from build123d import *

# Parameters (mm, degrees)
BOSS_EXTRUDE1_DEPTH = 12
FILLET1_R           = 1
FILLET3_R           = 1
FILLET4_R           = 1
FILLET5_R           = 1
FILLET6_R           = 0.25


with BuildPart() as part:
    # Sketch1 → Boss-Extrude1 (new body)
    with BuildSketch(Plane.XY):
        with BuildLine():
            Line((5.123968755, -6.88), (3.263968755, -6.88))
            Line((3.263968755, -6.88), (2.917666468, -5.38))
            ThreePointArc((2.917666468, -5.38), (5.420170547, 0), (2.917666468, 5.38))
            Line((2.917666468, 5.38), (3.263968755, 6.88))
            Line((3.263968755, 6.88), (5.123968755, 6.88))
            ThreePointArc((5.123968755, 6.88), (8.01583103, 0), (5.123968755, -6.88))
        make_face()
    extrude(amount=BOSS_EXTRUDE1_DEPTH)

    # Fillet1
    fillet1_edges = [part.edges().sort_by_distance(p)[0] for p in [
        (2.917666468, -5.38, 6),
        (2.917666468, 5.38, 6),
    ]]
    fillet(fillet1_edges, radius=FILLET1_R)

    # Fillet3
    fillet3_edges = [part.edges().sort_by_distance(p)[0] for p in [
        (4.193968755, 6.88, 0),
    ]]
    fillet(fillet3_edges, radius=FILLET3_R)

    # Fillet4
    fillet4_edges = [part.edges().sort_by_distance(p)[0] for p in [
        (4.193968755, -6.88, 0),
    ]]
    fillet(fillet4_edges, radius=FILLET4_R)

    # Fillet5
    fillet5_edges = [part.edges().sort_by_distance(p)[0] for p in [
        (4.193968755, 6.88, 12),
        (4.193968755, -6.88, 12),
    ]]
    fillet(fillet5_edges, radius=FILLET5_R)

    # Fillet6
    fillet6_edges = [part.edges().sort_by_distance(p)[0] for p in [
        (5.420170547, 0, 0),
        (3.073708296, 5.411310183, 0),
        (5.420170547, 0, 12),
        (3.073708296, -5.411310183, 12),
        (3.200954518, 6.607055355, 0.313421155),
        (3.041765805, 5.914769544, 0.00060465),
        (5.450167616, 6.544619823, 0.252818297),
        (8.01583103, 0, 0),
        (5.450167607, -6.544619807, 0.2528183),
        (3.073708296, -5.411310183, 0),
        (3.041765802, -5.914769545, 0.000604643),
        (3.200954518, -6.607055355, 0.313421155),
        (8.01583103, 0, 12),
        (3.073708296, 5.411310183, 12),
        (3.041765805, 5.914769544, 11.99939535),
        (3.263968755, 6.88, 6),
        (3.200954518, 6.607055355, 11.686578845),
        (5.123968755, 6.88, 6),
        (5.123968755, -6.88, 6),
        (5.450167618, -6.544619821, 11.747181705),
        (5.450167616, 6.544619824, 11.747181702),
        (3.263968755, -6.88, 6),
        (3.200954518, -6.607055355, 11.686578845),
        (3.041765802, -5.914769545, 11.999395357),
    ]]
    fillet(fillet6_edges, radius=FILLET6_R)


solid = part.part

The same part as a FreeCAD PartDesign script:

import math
import FreeCAD as App
import Part
import Sketcher
from FreeCAD import Vector
Q = App.Units.Quantity


def edges_at(feature, points):
    """Names of the edges that pass closest to the given points."""
    edges = feature.Shape.Edges
    near = lambda p: min(range(len(edges)), key=lambda i: edges[i].distToShape(Part.Vertex(*p))[0])
    return sorted({f"Edge{near(p) + 1}" for p in points})

doc = App.newDocument("Part")
body = doc.addObject("PartDesign::Body", "Body")

sketch1 = body.newObject("Sketcher::SketchObject", "Sketch")
sketch1.AttachmentSupport = (doc.getObject("XY_Plane"), [""])
sketch1.MapMode = "FlatFace"
sketch1.addGeometry([
    Part.LineSegment(Vector(3.3, -6.9, 0), Vector(5.1, -6.9, 0)),
    Part.ArcOfCircle(Part.Circle(Vector(-1.6, 0, 0), Vector(0, 0, 1), 9.6), math.radians(-46), math.radians(46)),
    Part.LineSegment(Vector(5.1, 6.9, 0), Vector(3.3, 6.9, 0)),
    Part.LineSegment(Vector(3.3, 6.9, 0), Vector(2.9, 5.4, 0)),
    Part.ArcOfCircle(Part.Circle(Vector(-1.6, 0, 0), Vector(0, 0, 1), 7), math.radians(-50), math.radians(50)),
    Part.LineSegment(Vector(2.9, -5.4, 0), Vector(3.3, -6.9, 0)),
], False)
sketch1.addConstraint([
    Sketcher.Constraint("Coincident", 0, 2, 1, 1),
    Sketcher.Constraint("Coincident", 1, 2, 2, 1),
    Sketcher.Constraint("Coincident", 2, 2, 3, 1),
    Sketcher.Constraint("Coincident", 3, 2, 4, 2),
    Sketcher.Constraint("Coincident", 4, 1, 5, 1),
    Sketcher.Constraint("Coincident", 5, 2, 0, 1),
    Sketcher.Constraint("Horizontal", 0),
    Sketcher.Constraint("Horizontal", 2),
    Sketcher.Constraint("Coincident", 4, 3, 1, 3),
    Sketcher.Constraint("Symmetric", 0, 2, 1, 2, -1),
    Sketcher.Constraint("Vertical", 3, 2, 4, 1),
    Sketcher.Constraint("Vertical", 2, 2, 5, 2),
    Sketcher.Constraint("Angle", 3, Q("-103 deg")),
    Sketcher.Constraint("Radius", 1, Q("9.63 mm")),
    Sketcher.Constraint("DistanceX", 0, 1, 0, 2, Q("1.86 mm")),
    Sketcher.Constraint("DistanceY", 3, 2, 2, 2, Q("1.5 mm")),
    Sketcher.Constraint("DistanceY", 0, 2, -1, 1, Q("6.88 mm")),
    Sketcher.Constraint("DistanceX", 1, 3, -1, 1, Q("1.614169 mm")),
])
pad1 = body.newObject("PartDesign::Pad", "Pad")
pad1.Profile = sketch1
pad1.Length = 12
doc.recompute()

fillet = body.newObject("PartDesign::Fillet", "Fillet")
fillet.Base = (pad1, edges_at(pad1, [(2.918, -5.38, 6), (2.918, 5.38, 6)]))
fillet.Radius = 1
doc.recompute()

fillet2 = body.newObject("PartDesign::Fillet", "Fillet001")
fillet2.Base = (fillet, edges_at(fillet, [(4.194, 6.88, 0)]))
fillet2.Radius = 1
doc.recompute()

fillet3 = body.newObject("PartDesign::Fillet", "Fillet002")
fillet3.Base = (fillet2, edges_at(fillet2, [(4.194, -6.88, 0)]))
fillet3.Radius = 1
doc.recompute()

fillet4 = body.newObject("PartDesign::Fillet", "Fillet003")
fillet4.Base = (fillet3, edges_at(fillet3, [(4.194, 6.88, 12), (4.194, -6.88, 12)]))
fillet4.Radius = 1
doc.recompute()

fillet5 = body.newObject("PartDesign::Fillet", "Fillet004")
fillet5.Base = (fillet4, edges_at(fillet4, [
    (5.42, 0, 0),
    (3.074, 5.411, 0),
    (5.42, 0, 12),
    (3.074, -5.411, 12),
    (3.201, 6.607, 0.313),
    (3.042, 5.915, 0.001),
    (5.45, 6.545, 0.253),
    (8.016, 0, 0),
    (5.45, -6.545, 0.253),
    (3.074, -5.411, 0),
    (3.042, -5.915, 0.001),
    (3.201, -6.607, 0.313),
    (8.016, 0, 12),
    (3.074, 5.411, 12),
    (3.042, 5.915, 11.999),
    (3.264, 6.88, 6),
    (3.201, 6.607, 11.687),
    (5.124, 6.88, 6),
    (5.124, -6.88, 6),
    (5.45, -6.545, 11.747),
    (5.45, 6.545, 11.747),
    (3.264, -6.88, 6),
    (3.201, -6.607, 11.687),
    (3.042, -5.915, 11.999),
]))
fillet5.Radius = 0.25

doc.recompute()
